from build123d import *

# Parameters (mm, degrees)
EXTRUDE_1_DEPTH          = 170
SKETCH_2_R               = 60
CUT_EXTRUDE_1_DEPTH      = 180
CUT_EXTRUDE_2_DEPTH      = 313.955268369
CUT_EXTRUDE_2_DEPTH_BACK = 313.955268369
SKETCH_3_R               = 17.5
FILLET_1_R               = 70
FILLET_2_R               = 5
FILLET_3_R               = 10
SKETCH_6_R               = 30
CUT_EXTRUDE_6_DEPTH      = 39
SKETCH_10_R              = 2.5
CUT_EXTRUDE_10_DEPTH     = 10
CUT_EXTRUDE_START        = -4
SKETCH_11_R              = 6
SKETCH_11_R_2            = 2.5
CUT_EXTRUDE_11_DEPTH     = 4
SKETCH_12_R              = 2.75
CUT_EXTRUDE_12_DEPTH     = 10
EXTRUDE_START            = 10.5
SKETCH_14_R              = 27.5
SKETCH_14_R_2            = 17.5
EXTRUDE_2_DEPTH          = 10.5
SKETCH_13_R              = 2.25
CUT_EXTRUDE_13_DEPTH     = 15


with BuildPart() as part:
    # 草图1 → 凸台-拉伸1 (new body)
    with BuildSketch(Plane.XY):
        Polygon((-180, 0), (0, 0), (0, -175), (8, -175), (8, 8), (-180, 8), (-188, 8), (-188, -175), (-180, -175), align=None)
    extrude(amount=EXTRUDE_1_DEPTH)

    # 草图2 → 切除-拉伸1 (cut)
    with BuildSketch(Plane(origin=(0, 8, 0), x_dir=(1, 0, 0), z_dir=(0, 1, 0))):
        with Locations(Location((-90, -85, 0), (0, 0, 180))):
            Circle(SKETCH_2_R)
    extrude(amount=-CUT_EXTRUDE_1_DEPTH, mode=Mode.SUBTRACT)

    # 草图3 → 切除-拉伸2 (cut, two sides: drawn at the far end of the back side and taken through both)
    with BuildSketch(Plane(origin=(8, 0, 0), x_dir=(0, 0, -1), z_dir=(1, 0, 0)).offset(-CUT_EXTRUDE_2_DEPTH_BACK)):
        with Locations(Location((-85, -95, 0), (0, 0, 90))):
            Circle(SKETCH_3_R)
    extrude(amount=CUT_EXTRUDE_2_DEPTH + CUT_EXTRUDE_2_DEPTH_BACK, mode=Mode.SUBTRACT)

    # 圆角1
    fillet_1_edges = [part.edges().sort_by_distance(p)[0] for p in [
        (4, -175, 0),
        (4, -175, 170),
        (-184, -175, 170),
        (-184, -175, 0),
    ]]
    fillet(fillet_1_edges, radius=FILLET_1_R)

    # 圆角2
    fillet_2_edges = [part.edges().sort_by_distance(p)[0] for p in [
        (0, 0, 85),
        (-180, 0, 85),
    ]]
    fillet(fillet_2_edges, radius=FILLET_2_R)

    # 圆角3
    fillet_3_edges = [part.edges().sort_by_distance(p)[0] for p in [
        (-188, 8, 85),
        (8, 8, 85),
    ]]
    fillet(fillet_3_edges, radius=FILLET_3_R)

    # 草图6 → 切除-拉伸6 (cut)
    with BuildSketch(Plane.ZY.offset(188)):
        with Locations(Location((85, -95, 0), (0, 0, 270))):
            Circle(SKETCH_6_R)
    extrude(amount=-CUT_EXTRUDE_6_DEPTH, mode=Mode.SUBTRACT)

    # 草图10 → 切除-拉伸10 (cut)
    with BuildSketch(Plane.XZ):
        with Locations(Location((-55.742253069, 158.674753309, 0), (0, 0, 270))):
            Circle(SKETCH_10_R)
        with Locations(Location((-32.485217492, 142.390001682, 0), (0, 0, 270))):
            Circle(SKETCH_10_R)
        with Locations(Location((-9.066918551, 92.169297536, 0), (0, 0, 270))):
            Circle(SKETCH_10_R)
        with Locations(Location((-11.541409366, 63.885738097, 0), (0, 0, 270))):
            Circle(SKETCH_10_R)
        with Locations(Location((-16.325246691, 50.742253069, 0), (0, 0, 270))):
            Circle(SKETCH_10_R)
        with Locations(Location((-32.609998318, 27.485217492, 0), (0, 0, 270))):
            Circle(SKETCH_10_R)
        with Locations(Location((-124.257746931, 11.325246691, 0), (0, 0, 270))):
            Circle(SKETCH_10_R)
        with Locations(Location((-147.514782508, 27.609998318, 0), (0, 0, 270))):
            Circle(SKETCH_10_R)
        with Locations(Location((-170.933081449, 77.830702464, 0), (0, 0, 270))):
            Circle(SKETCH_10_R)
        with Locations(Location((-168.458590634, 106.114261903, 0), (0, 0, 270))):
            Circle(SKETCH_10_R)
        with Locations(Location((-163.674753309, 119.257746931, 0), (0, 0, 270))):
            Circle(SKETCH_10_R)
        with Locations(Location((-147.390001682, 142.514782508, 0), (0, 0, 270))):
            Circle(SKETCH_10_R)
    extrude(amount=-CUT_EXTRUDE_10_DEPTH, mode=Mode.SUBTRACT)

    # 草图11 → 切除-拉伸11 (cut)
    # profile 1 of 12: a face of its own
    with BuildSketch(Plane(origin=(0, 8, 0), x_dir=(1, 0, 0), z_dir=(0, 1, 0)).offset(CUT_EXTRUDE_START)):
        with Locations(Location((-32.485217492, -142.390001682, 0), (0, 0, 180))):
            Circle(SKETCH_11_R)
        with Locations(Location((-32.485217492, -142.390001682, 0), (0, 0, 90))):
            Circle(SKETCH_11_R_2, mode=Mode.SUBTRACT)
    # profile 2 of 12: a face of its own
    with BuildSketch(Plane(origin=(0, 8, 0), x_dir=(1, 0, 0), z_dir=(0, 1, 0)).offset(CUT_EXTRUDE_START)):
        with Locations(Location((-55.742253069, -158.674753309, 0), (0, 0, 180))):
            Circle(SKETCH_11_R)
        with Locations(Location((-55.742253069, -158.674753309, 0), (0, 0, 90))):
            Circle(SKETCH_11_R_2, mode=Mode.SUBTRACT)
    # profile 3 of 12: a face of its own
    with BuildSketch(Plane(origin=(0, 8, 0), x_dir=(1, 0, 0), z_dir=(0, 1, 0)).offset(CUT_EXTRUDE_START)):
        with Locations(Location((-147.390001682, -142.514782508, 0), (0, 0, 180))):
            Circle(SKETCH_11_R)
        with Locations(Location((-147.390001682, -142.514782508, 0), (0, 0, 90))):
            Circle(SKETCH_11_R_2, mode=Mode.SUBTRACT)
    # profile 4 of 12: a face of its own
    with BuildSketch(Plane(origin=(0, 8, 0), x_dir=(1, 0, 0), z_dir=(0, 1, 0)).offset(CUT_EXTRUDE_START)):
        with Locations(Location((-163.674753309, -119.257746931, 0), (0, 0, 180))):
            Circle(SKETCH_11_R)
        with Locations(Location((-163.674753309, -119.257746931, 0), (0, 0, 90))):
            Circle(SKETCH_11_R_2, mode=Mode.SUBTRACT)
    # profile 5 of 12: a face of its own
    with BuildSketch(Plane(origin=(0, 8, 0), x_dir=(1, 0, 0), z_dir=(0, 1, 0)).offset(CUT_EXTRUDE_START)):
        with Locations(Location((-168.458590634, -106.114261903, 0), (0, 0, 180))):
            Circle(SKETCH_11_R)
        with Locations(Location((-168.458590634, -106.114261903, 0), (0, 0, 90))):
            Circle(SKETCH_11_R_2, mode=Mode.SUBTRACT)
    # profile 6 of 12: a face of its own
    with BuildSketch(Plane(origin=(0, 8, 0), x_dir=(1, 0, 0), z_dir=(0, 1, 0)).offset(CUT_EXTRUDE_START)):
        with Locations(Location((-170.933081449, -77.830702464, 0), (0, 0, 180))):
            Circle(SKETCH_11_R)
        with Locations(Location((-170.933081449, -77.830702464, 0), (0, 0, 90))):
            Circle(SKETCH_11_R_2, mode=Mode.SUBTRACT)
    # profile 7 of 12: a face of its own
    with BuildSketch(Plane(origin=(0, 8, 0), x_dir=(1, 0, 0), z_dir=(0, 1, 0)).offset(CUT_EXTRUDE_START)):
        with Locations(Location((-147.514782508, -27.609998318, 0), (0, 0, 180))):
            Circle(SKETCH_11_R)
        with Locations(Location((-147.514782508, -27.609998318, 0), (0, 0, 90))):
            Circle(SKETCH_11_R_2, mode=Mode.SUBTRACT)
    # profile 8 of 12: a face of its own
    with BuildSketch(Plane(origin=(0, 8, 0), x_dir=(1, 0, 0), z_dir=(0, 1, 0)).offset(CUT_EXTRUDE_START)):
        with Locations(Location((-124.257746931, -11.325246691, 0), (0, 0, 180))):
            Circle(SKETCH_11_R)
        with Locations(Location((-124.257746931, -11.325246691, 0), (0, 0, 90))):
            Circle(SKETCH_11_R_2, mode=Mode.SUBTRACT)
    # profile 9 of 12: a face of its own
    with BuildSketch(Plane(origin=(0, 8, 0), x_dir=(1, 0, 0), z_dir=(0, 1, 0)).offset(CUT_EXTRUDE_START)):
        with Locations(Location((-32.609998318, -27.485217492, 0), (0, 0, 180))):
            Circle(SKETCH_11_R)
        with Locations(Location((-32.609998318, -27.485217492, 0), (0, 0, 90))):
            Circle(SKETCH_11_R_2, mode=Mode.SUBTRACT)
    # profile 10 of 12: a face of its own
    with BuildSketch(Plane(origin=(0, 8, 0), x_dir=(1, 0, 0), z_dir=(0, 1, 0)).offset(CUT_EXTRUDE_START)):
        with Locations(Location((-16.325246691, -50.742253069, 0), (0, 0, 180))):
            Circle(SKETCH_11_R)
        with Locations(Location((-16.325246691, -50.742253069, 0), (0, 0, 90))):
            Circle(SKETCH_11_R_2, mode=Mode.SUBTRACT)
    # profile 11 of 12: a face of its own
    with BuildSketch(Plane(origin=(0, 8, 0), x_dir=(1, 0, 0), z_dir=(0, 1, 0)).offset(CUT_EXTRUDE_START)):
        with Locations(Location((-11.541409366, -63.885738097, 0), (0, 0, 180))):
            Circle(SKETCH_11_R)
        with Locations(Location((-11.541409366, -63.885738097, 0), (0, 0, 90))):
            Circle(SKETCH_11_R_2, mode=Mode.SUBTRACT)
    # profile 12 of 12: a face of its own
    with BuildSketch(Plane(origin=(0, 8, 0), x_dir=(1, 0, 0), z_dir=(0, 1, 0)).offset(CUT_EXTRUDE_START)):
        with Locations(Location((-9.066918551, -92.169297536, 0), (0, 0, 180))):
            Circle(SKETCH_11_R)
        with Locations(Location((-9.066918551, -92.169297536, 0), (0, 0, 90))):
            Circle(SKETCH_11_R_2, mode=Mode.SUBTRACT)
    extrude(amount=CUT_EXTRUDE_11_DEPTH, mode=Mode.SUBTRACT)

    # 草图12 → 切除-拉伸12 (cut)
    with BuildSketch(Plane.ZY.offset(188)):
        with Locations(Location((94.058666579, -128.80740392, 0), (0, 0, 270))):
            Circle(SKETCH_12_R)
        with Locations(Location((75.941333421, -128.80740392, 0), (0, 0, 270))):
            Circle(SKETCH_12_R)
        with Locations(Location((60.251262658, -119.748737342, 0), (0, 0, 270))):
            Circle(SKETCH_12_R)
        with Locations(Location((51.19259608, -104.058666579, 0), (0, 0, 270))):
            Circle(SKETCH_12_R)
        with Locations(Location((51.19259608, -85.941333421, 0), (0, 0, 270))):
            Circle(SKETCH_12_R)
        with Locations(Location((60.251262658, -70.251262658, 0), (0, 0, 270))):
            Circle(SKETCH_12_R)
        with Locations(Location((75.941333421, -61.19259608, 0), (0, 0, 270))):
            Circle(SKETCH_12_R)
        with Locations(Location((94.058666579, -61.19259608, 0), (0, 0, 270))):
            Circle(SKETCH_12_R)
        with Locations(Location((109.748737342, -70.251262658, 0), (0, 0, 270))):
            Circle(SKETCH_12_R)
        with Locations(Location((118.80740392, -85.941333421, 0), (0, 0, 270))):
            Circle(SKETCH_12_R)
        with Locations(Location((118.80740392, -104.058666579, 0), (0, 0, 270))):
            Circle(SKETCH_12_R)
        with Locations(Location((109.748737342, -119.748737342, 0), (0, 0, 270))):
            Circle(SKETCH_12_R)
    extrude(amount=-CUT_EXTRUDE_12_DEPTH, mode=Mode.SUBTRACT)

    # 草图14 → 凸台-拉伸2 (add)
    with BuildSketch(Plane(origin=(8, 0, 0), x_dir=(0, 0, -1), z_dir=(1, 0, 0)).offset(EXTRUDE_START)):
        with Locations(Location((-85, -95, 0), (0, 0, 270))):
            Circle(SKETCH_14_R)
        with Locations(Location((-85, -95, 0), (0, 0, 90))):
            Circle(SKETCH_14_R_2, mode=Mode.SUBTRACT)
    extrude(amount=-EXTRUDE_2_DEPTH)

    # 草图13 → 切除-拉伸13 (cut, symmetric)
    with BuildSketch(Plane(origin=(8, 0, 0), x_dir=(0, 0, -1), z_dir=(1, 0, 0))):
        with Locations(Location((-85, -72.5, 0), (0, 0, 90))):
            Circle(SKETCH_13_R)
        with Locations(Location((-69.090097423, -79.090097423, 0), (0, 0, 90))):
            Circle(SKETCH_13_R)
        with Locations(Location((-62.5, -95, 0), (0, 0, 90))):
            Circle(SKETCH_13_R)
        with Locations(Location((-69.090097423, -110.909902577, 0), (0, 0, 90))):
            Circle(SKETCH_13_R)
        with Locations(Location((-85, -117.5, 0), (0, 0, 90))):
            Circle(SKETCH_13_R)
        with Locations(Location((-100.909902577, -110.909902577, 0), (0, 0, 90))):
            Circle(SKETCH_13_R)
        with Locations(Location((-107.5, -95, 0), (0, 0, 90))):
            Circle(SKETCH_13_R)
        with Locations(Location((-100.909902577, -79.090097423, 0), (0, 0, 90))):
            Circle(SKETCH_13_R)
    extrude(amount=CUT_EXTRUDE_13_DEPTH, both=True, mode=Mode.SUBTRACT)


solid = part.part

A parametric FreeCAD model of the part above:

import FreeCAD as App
import Part
import Sketcher
from FreeCAD import Vector


def edges_at(feature, points):
    """Names of the edges that pass closest to the given points."""
    edges = feature.Shape.Edges
    near = lambda p: min(range(len(edges)), key=lambda i: edges[i].distToShape(Part.Vertex(*p))[0])
    return sorted({f"Edge{near(p) + 1}" for p in points})

doc = App.newDocument("Part")
body = doc.addObject("PartDesign::Body", "Body")

sketch1 = body.newObject("Sketcher::SketchObject", "Sketch")
sketch1.AttachmentSupport = (doc.getObject("XY_Plane"), [""])
sketch1.MapMode = "FlatFace"
sketch1.addGeometry(Part.LineSegment(Vector(-180, 0, 0), Vector(0, 0, 0)), False)
sketch1.addGeometry(Part.LineSegment(Vector(0, 0, 0), Vector(0, -175, 0)), False)
sketch1.addGeometry(Part.LineSegment(Vector(0, -175, 0), Vector(8, -175, 0)), False)
sketch1.addGeometry(Part.LineSegment(Vector(8, -175, 0), Vector(8, 8, 0)), False)
sketch1.addGeometry(Part.LineSegment(Vector(8, 8, 0), Vector(-188, 8, 0)), False)
sketch1.addGeometry(Part.LineSegment(Vector(-188, 8, 0), Vector(-188, -175, 0)), False)
sketch1.addGeometry(Part.LineSegment(Vector(-188, -175, 0), Vector(-180, -175, 0)), False)
sketch1.addGeometry(Part.LineSegment(Vector(-180, -175, 0), Vector(-180, 0, 0)), False)
sketch1.addConstraint(Sketcher.Constraint("Coincident", 0, 2, 1, 1))
sketch1.addConstraint(Sketcher.Constraint("Coincident", 1, 2, 2, 1))
sketch1.addConstraint(Sketcher.Constraint("Coincident", 2, 2, 3, 1))
sketch1.addConstraint(Sketcher.Constraint("Coincident", 3, 2, 4, 1))
sketch1.addConstraint(Sketcher.Constraint("Coincident", 4, 2, 5, 1))
sketch1.addConstraint(Sketcher.Constraint("Coincident", 5, 2, 6, 1))
sketch1.addConstraint(Sketcher.Constraint("Coincident", 6, 2, 7, 1))
sketch1.addConstraint(Sketcher.Constraint("Coincident", 7, 2, 0, 1))
sketch1.addConstraint(Sketcher.Constraint("Horizontal", 0))
sketch1.addConstraint(Sketcher.Constraint("Vertical", 1))
sketch1.addConstraint(Sketcher.Constraint("Horizontal", 2))
sketch1.addConstraint(Sketcher.Constraint("Vertical", 3))
sketch1.addConstraint(Sketcher.Constraint("Horizontal", 4))
sketch1.addConstraint(Sketcher.Constraint("Vertical", 5))
sketch1.addConstraint(Sketcher.Constraint("Horizontal", 6))
sketch1.addConstraint(Sketcher.Constraint("Vertical", 7))
sketch1.addConstraint(Sketcher.Constraint("Coincident", 0, 2, -1, 1))
sketch1.addConstraint(Sketcher.Constraint("Horizontal", 2, 2, 5, 2))
sketch1.addConstraint(Sketcher.Constraint("Equal", 2, 6))
sketch1.addConstraint(Sketcher.Constraint("DistanceX", 0, 1, 0, 2, 180.0))
sketch1.addConstraint(Sketcher.Constraint("DistanceX", 2, 1, 2, 2, 8.0))
sketch1.addConstraint(Sketcher.Constraint("DistanceY", 1, 2, 1, 1, 175.0))
sketch1.addConstraint(Sketcher.Constraint("DistanceY", 3, 1, 3, 2, 183.0))
pad1 = body.newObject("PartDesign::Pad", "Pad")
pad1.Profile = sketch1
pad1.Length = 170

sketch2 = body.newObject("Sketcher::SketchObject", "Sketch001")
sketch2.AttachmentSupport = (doc.getObject("XZ_Plane"), [""])
sketch2.MapMode = "FlatFace"
sketch2.AttachmentOffset = App.Placement(Vector(0, 0, -8), App.Rotation())
sketch2.addGeometry(Part.Circle(Vector(-90, 85, 0), Vector(0, 0, 1), 60), False)
sketch2.addConstraint(Sketcher.Constraint("Diameter", 0, 120.0))
sketch2.addConstraint(Sketcher.Constraint("DistanceX", 0, 3, -1, 1, 90.0))
sketch2.addConstraint(Sketcher.Constraint("DistanceY", -1, 1, 0, 3, 85.0))
pocket1 = body.newObject("PartDesign::Pocket", "Pocket")
pocket1.Profile = sketch2
pocket1.Length = 180
pocket1.Reversed = True

sketch3 = body.newObject("Sketcher::SketchObject", "Sketch002")
sketch3.AttachmentSupport = (doc.getObject("YZ_Plane"), [""])
sketch3.MapMode = "FlatFace"
sketch3.AttachmentOffset = App.Placement(Vector(0, 0, 8), App.Rotation())
sketch3.addGeometry(Part.Circle(Vector(-95, 85, 0), Vector(0, 0, 1), 18), False)
sketch3.addConstraint(Sketcher.Constraint("Diameter", 0, 35.0))
sketch3.addConstraint(Sketcher.Constraint("DistanceX", 0, 3, -1, 1, 95.0))
sketch3.addConstraint(Sketcher.Constraint("DistanceY", -1, 1, 0, 3, 85.0))
pocket2 = body.newObject("PartDesign::Pocket", "Pocket001")
pocket2.Profile = sketch3
pocket2.Type = "ThroughAll"
pocket2.Midplane = True
doc.recompute()

fillet = body.newObject("PartDesign::Fillet", "Fillet")
fillet.Base = (pocket2, edges_at(pocket2, [
    (4, -175, 0),
    (4, -175, 170),
    (-184, -175, 170),
    (-184, -175, 0),
]))
fillet.Radius = 70
doc.recompute()

fillet2 = body.newObject("PartDesign::Fillet", "Fillet001")
fillet2.Base = (fillet, edges_at(fillet, [(0, 0, 85), (-180, 0, 85)]))
fillet2.Radius = 5
doc.recompute()

fillet3 = body.newObject("PartDesign::Fillet", "Fillet002")
fillet3.Base = (fillet2, edges_at(fillet2, [(-188, 8, 85), (8, 8, 85)]))
fillet3.Radius = 10

sketch4 = body.newObject("Sketcher::SketchObject", "Sketch003")
sketch4.AttachmentSupport = (doc.getObject("YZ_Plane"), [""])
sketch4.MapMode = "FlatFace"
sketch4.AttachmentOffset = App.Placement(Vector(0, 0, -188), App.Rotation())
sketch4.addGeometry(Part.Circle(Vector(-95, 85, 0), Vector(0, 0, 1), 30), False)
sketch4.addConstraint(Sketcher.Constraint("Diameter", 0, 60.0))
sketch4.addConstraint(Sketcher.Constraint("DistanceX", 0, 3, -1, 1, 95.0))
sketch4.addConstraint(Sketcher.Constraint("DistanceY", -1, 1, 0, 3, 85.0))
pocket3 = body.newObject("PartDesign::Pocket", "Pocket002")
pocket3.Profile = sketch4
pocket3.Length = 39
pocket3.Reversed = True

sketch5 = body.newObject("Sketcher::SketchObject", "Sketch004")
sketch5.AttachmentSupport = (doc.getObject("XZ_Plane"), [""])
sketch5.MapMode = "FlatFace"
sketch5.addGeometry(Part.Circle(Vector(-55.7, 158.7, 0), Vector(0, 0, 1), 2.5), False)
sketch5.addGeometry(Part.Circle(Vector(-32.5, 142.4, 0), Vector(0, 0, 1), 2.5), False)
sketch5.addGeometry(Part.Circle(Vector(-9.1, 92.2, 0), Vector(0, 0, 1), 2.5), False)
sketch5.addGeometry(Part.Circle(Vector(-11.5, 63.9, 0), Vector(0, 0, 1), 2.5), False)
sketch5.addGeometry(Part.Circle(Vector(-16.3, 50.7, 0), Vector(0, 0, 1), 2.5), False)
sketch5.addGeometry(Part.Circle(Vector(-32.6, 27.5, 0), Vector(0, 0, 1), 2.5), False)
sketch5.addGeometry(Part.Circle(Vector(-124.3, 11.3, 0), Vector(0, 0, 1), 2.5), False)
sketch5.addGeometry(Part.Circle(Vector(-147.5, 27.6, 0), Vector(0, 0, 1), 2.5), False)
sketch5.addGeometry(Part.Circle(Vector(-170.9, 77.8, 0), Vector(0, 0, 1), 2.5), False)
sketch5.addGeometry(Part.Circle(Vector(-168.5, 106.1, 0), Vector(0, 0, 1), 2.5), False)
sketch5.addGeometry(Part.Circle(Vector(-163.7, 119.3, 0), Vector(0, 0, 1), 2.5), False)
sketch5.addGeometry(Part.Circle(Vector(-147.4, 142.5, 0), Vector(0, 0, 1), 2.5), False)
sketch5.addConstraint(Sketcher.Constraint("Equal", 0, 1))
sketch5.addConstraint(Sketcher.Constraint("Equal", 1, 2))
sketch5.addConstraint(Sketcher.Constraint("Equal", 2, 3))
sketch5.addConstraint(Sketcher.Constraint("Equal", 3, 4))
sketch5.addConstraint(Sketcher.Constraint("Equal", 4, 5))
sketch5.addConstraint(Sketcher.Constraint("Equal", 5, 6))
sketch5.addConstraint(Sketcher.Constraint("Equal", 6, 7))
sketch5.addConstraint(Sketcher.Constraint("Equal", 7, 8))
sketch5.addConstraint(Sketcher.Constraint("Equal", 8, 9))
sketch5.addConstraint(Sketcher.Constraint("Equal", 9, 10))
sketch5.addConstraint(Sketcher.Constraint("Equal", 10, 11))
sketch5.addConstraint(Sketcher.Constraint("Diameter", 0, 5.0))
sketch5.addConstraint(Sketcher.Constraint("DistanceY", -1, 1, 1, 3, 142.390002))
sketch5.addConstraint(Sketcher.Constraint("DistanceX", 5, 3, -1, 1, 32.609998))
sketch5.addConstraint(Sketcher.Constraint("DistanceY", -1, 1, 7, 3, 27.609998))
sketch5.addConstraint(Sketcher.Constraint("DistanceX", 11, 3, -1, 1, 147.390002))
sketch5.addConstraint(Sketcher.Constraint("DistanceX", 1, 3, 2, 3, 23.418299))
sketch5.addConstraint(Sketcher.Constraint("DistanceY", 4, 3, 0, 3, 107.9325))
sketch5.addConstraint(Sketcher.Constraint("DistanceX", 6, 3, 4, 3, 107.9325))
sketch5.addConstraint(Sketcher.Constraint("DistanceY", 7, 3, 2, 3, 64.559299))
sketch5.addConstraint(Sketcher.Constraint("DistanceX", 8, 3, 7, 3, 23.418299))
sketch5.addConstraint(Sketcher.Constraint("DistanceY", 8, 3, 1, 3, 64.559299))
sketch5.addConstraint(Sketcher.Constraint("DistanceY", 6, 3, 10, 3, 107.9325))
sketch5.addConstraint(Sketcher.Constraint("DistanceX", 10, 3, 0, 3, 107.9325))
sketch5.addConstraint(Sketcher.Constraint("DistanceX", 2, 3, -1, 1, 9.066919))
sketch5.addConstraint(Sketcher.Constraint("DistanceX", 3, 3, -1, 1, 11.541409))
sketch5.addConstraint(Sketcher.Constraint("DistanceY", -1, 1, 3, 3, 63.885738))
sketch5.addConstraint(Sketcher.Constraint("DistanceX", 8, 3, -1, 1, 170.933081))
sketch5.addConstraint(Sketcher.Constraint("DistanceX", 9, 3, -1, 1, 168.458591))
sketch5.addConstraint(Sketcher.Constraint("DistanceY", -1, 1, 9, 3, 106.114262))
sketch5.addConstraint(Sketcher.Constraint("DistanceY", 1, 3, 0, 3, 16.284752))
sketch5.addConstraint(Sketcher.Constraint("DistanceX", 4, 3, 2, 3, 7.258328))
sketch5.addConstraint(Sketcher.Constraint("DistanceY", 5, 3, 3, 3, 36.400521))
sketch5.addConstraint(Sketcher.Constraint("DistanceY", 6, 3, 5, 3, 16.159971))
sketch5.addConstraint(Sketcher.Constraint("DistanceX", 8, 3, 0, 3, 115.190828))
sketch5.addConstraint(Sketcher.Constraint("DistanceY", 9, 3, 11, 3, 36.400521))
pocket4 = body.newObject("PartDesign::Pocket", "Pocket003")
pocket4.Profile = sketch5
pocket4.Length = 10

sketch6 = body.newObject("Sketcher::SketchObject", "Sketch005")
sketch6.AttachmentSupport = (doc.getObject("XZ_Plane"), [""])
sketch6.MapMode = "FlatFace"
sketch6.AttachmentOffset = App.Placement(Vector(0, 0, -4), App.Rotation())
sketch6.addGeometry(Part.Circle(Vector(-32.5, 142.4, 0), Vector(0, 0, 1), 6), False)
sketch6.addGeometry(Part.Circle(Vector(-32.5, 142.4, 0), Vector(0, 0, 1), 2.5), False)
sketch6.addGeometry(Part.Circle(Vector(-55.7, 158.7, 0), Vector(0, 0, 1), 6), False)
sketch6.addGeometry(Part.Circle(Vector(-55.7, 158.7, 0), Vector(0, 0, 1), 2.5), False)
sketch6.addGeometry(Part.Circle(Vector(-147.4, 142.5, 0), Vector(0, 0, 1), 6), False)
sketch6.addGeometry(Part.Circle(Vector(-147.4, 142.5, 0), Vector(0, 0, 1), 2.5), False)
sketch6.addGeometry(Part.Circle(Vector(-163.7, 119.3, 0), Vector(0, 0, 1), 6), False)
sketch6.addGeometry(Part.Circle(Vector(-163.7, 119.3, 0), Vector(0, 0, 1), 2.5), False)
sketch6.addGeometry(Part.Circle(Vector(-168.5, 106.1, 0), Vector(0, 0, 1), 6), False)
sketch6.addGeometry(Part.Circle(Vector(-168.5, 106.1, 0), Vector(0, 0, 1), 2.5), False)
sketch6.addGeometry(Part.Circle(Vector(-170.9, 77.8, 0), Vector(0, 0, 1), 6), False)
sketch6.addGeometry(Part.Circle(Vector(-170.9, 77.8, 0), Vector(0, 0, 1), 2.5), False)
sketch6.addGeometry(Part.Circle(Vector(-147.5, 27.6, 0), Vector(0, 0, 1), 6), False)
sketch6.addGeometry(Part.Circle(Vector(-147.5, 27.6, 0), Vector(0, 0, 1), 2.5), False)
sketch6.addGeometry(Part.Circle(Vector(-124.3, 11.3, 0), Vector(0, 0, 1), 6), False)
sketch6.addGeometry(Part.Circle(Vector(-124.3, 11.3, 0), Vector(0, 0, 1), 2.5), False)
sketch6.addGeometry(Part.Circle(Vector(-32.6, 27.5, 0), Vector(0, 0, 1), 6), False)
sketch6.addGeometry(Part.Circle(Vector(-32.6, 27.5, 0), Vector(0, 0, 1), 2.5), False)
sketch6.addGeometry(Part.Circle(Vector(-16.3, 50.7, 0), Vector(0, 0, 1), 6), False)
sketch6.addGeometry(Part.Circle(Vector(-16.3, 50.7, 0), Vector(0, 0, 1), 2.5), False)
sketch6.addGeometry(Part.Circle(Vector(-11.5, 63.9, 0), Vector(0, 0, 1), 6), False)
sketch6.addGeometry(Part.Circle(Vector(-11.5, 63.9, 0), Vector(0, 0, 1), 2.5), False)
sketch6.addGeometry(Part.Circle(Vector(-9.1, 92.2, 0), Vector(0, 0, 1), 6), False)
sketch6.addGeometry(Part.Circle(Vector(-9.1, 92.2, 0), Vector(0, 0, 1), 2.5), False)
sketch6.addConstraint(Sketcher.Constraint("Coincident", 1, 3, 0, 3))
sketch6.addConstraint(Sketcher.Constraint("Coincident", 3, 3, 2, 3))
sketch6.addConstraint(Sketcher.Constraint("Coincident", 5, 3, 4, 3))
sketch6.addConstraint(Sketcher.Constraint("Coincident", 7, 3, 6, 3))
sketch6.addConstraint(Sketcher.Constraint("Coincident", 9, 3, 8, 3))
sketch6.addConstraint(Sketcher.Constraint("Coincident", 11, 3, 10, 3))
sketch6.addConstraint(Sketcher.Constraint("Coincident", 13, 3, 12, 3))
sketch6.addConstraint(Sketcher.Constraint("Coincident", 15, 3, 14, 3))
sketch6.addConstraint(Sketcher.Constraint("Coincident", 17, 3, 16, 3))
sketch6.addConstraint(Sketcher.Constraint("Coincident", 19, 3, 18, 3))
sketch6.addConstraint(Sketcher.Constraint("Coincident", 21, 3, 20, 3))
sketch6.addConstraint(Sketcher.Constraint("Coincident", 23, 3, 22, 3))
sketch6.addConstraint(Sketcher.Constraint("Equal", 0, 2))
sketch6.addConstraint(Sketcher.Constraint("Equal", 1, 3))
sketch6.addConstraint(Sketcher.Constraint("Equal", 2, 4))
sketch6.addConstraint(Sketcher.Constraint("Equal", 3, 5))
sketch6.addConstraint(Sketcher.Constraint("Equal", 4, 6))
sketch6.addConstraint(Sketcher.Constraint("Equal", 5, 7))
sketch6.addConstraint(Sketcher.Constraint("Equal", 6, 8))
sketch6.addConstraint(Sketcher.Constraint("Equal", 7, 9))
sketch6.addConstraint(Sketcher.Constraint("Equal", 8, 10))
sketch6.addConstraint(Sketcher.Constraint("Equal", 9, 11))
sketch6.addConstraint(Sketcher.Constraint("Equal", 10, 12))
sketch6.addConstraint(Sketcher.Constraint("Equal", 11, 13))
sketch6.addConstraint(Sketcher.Constraint("Equal", 12, 14))
sketch6.addConstraint(Sketcher.Constraint("Equal", 13, 15))
sketch6.addConstraint(Sketcher.Constraint("Equal", 14, 16))
sketch6.addConstraint(Sketcher.Constraint("Equal", 15, 17))
sketch6.addConstraint(Sketcher.Constraint("Equal", 16, 18))
sketch6.addConstraint(Sketcher.Constraint("Equal", 17, 19))
sketch6.addConstraint(Sketcher.Constraint("Equal", 18, 20))
sketch6.addConstraint(Sketcher.Constraint("Equal", 19, 21))
sketch6.addConstraint(Sketcher.Constraint("Equal", 20, 22))
sketch6.addConstraint(Sketcher.Constraint("Equal", 21, 23))
sketch6.addConstraint(Sketcher.Constraint("Diameter", 0, 12.0))
sketch6.addConstraint(Sketcher.Constraint("Diameter", 1, 5.0))
sketch6.addConstraint(Sketcher.Constraint("DistanceY", -1, 1, 0, 3, 142.390002))
sketch6.addConstraint(Sketcher.Constraint("DistanceX", 4, 3, -1, 1, 147.390002))
sketch6.addConstraint(Sketcher.Constraint("DistanceY", -1, 1, 12, 3, 27.609998))
sketch6.addConstraint(Sketcher.Constraint("DistanceX", 16, 3, -1, 1, 32.609998))
sketch6.addConstraint(Sketcher.Constraint("DistanceX", 6, 3, 2, 3, 107.9325))
sketch6.addConstraint(Sketcher.Constraint("DistanceX", 10, 3, 12, 3, 23.418299))
sketch6.addConstraint(Sketcher.Constraint("DistanceX", 14, 3, 18, 3, 107.9325))
sketch6.addConstraint(Sketcher.Constraint("DistanceX", 0, 3, 22, 3, 23.418299))
sketch6.addConstraint(Sketcher.Constraint("DistanceX", 8, 3, -1, 1, 168.458591))
sketch6.addConstraint(Sketcher.Constraint("DistanceY", -1, 1, 8, 3, 106.114262))
sketch6.addConstraint(Sketcher.Constraint("DistanceX", 10, 3, -1, 1, 170.933081))
sketch6.addConstraint(Sketcher.Constraint("DistanceX", 20, 3, -1, 1, 11.541409))
sketch6.addConstraint(Sketcher.Constraint("DistanceY", -1, 1, 20, 3, 63.885738))
sketch6.addConstraint(Sketcher.Constraint("DistanceX", 22, 3, -1, 1, 9.066919))
sketch6.addConstraint(Sketcher.Constraint("DistanceY", 0, 3, 2, 3, 16.284752))
sketch6.addConstraint(Sketcher.Constraint("DistanceX", 4, 3, 2, 3, 91.647749))
sketch6.addConstraint(Sketcher.Constraint("DistanceY", 4, 3, 2, 3, 16.159971))
sketch6.addConstraint(Sketcher.Constraint("DistanceY", 10, 3, 8, 3, 28.283559))
sketch6.addConstraint(Sketcher.Constraint("DistanceY", 12, 3, 6, 3, 91.647749))
sketch6.addConstraint(Sketcher.Constraint("DistanceY", 14, 3, 12, 3, 16.284752))
sketch6.addConstraint(Sketcher.Constraint("DistanceX", 14, 3, 16, 3, 91.647749))
sketch6.addConstraint(Sketcher.Constraint("DistanceY", 14, 3, 16, 3, 16.159971))
sketch6.addConstraint(Sketcher.Constraint("DistanceY", 18, 3, 0, 3, 91.647749))
sketch6.addConstraint(Sketcher.Constraint("DistanceY", 20, 3, 22, 3, 28.283559))
pocket5 = body.newObject("PartDesign::Pocket", "Pocket004")
pocket5.Profile = sketch6
pocket5.Length = 4

sketch7 = body.newObject("Sketcher::SketchObject", "Sketch006")
sketch7.AttachmentSupport = (doc.getObject("YZ_Plane"), [""])
sketch7.MapMode = "FlatFace"
sketch7.AttachmentOffset = App.Placement(Vector(0, 0, -188), App.Rotation())
sketch7.addGeometry(Part.Circle(Vector(-128.8, 94.1, 0), Vector(0, 0, 1), 2.8), False)
sketch7.addGeometry(Part.Circle(Vector(-128.8, 75.9, 0), Vector(0, 0, 1), 2.8), False)
sketch7.addGeometry(Part.Circle(Vector(-119.7, 60.3, 0), Vector(0, 0, 1), 2.8), False)
sketch7.addGeometry(Part.Circle(Vector(-104.1, 51.2, 0), Vector(0, 0, 1), 2.8), False)
sketch7.addGeometry(Part.Circle(Vector(-85.9, 51.2, 0), Vector(0, 0, 1), 2.8), False)
sketch7.addGeometry(Part.Circle(Vector(-70.3, 60.3, 0), Vector(0, 0, 1), 2.8), False)
sketch7.addGeometry(Part.Circle(Vector(-61.2, 75.9, 0), Vector(0, 0, 1), 2.8), False)
sketch7.addGeometry(Part.Circle(Vector(-61.2, 94.1, 0), Vector(0, 0, 1), 2.8), False)
sketch7.addGeometry(Part.Circle(Vector(-70.3, 109.7, 0), Vector(0, 0, 1), 2.8), False)
sketch7.addGeometry(Part.Circle(Vector(-85.9, 118.8, 0), Vector(0, 0, 1), 2.8), False)
sketch7.addGeometry(Part.Circle(Vector(-104.1, 118.8, 0), Vector(0, 0, 1), 2.8), False)
sketch7.addGeometry(Part.Circle(Vector(-119.7, 109.7, 0), Vector(0, 0, 1), 2.8), False)
sketch7.addConstraint(Sketcher.Constraint("Equal", 0, 1))
sketch7.addConstraint(Sketcher.Constraint("Equal", 1, 2))
sketch7.addConstraint(Sketcher.Constraint("Equal", 2, 3))
sketch7.addConstraint(Sketcher.Constraint("Equal", 3, 4))
sketch7.addConstraint(Sketcher.Constraint("Equal", 4, 5))
sketch7.addConstraint(Sketcher.Constraint("Equal", 5, 6))
sketch7.addConstraint(Sketcher.Constraint("Equal", 6, 7))
sketch7.addConstraint(Sketcher.Constraint("Equal", 7, 8))
sketch7.addConstraint(Sketcher.Constraint("Equal", 8, 9))
sketch7.addConstraint(Sketcher.Constraint("Equal", 9, 10))
sketch7.addConstraint(Sketcher.Constraint("Equal", 10, 11))
sketch7.addConstraint(Sketcher.Constraint("Horizontal", 3, 3, 4, 3))
sketch7.addConstraint(Sketcher.Constraint("Horizontal", 2, 3, 5, 3))
sketch7.addConstraint(Sketcher.Constraint("Horizontal", 1, 3, 6, 3))
sketch7.addConstraint(Sketcher.Constraint("Horizontal", 0, 3, 7, 3))
sketch7.addConstraint(Sketcher.Constraint("Horizontal", 9, 3, 10, 3))
sketch7.addConstraint(Sketcher.Constraint("Horizontal", 8, 3, 11, 3))
sketch7.addConstraint(Sketcher.Constraint("Vertical", 0, 3, 1, 3))
sketch7.addConstraint(Sketcher.Constraint("Vertical", 6, 3, 7, 3))
sketch7.addConstraint(Sketcher.Constraint("Vertical", 5, 3, 8, 3))
sketch7.addConstraint(Sketcher.Constraint("Vertical", 4, 3, 9, 3))
sketch7.addConstraint(Sketcher.Constraint("Vertical", 3, 3, 10, 3))
sketch7.addConstraint(Sketcher.Constraint("Vertical", 2, 3, 11, 3))
sketch7.addConstraint(Sketcher.Constraint("Diameter", 0, 5.5))
sketch7.addConstraint(Sketcher.Constraint("DistanceY", 2, 3, 1, 3, 15.690071))
sketch7.addConstraint(Sketcher.Constraint("DistanceX", 2, 3, 3, 3, 15.690071))
sketch7.addConstraint(Sketcher.Constraint("DistanceY", 3, 3, 0, 3, 42.86607))
sketch7.addConstraint(Sketcher.Constraint("DistanceX", 1, 3, 4, 3, 42.86607))
sketch7.addConstraint(Sketcher.Constraint("DistanceX", 4, 3, 5, 3, 15.690071))
sketch7.addConstraint(Sketcher.Constraint("DistanceX", 3, 3, 6, 3, 42.86607))
sketch7.addConstraint(Sketcher.Constraint("DistanceY", 7, 3, 8, 3, 15.690071))
sketch7.addConstraint(Sketcher.Constraint("DistanceY", 6, 3, 9, 3, 42.86607))
sketch7.addConstraint(Sketcher.Constraint("DistanceX", 0, 3, -1, 1, 128.807404))
sketch7.addConstraint(Sketcher.Constraint("DistanceY", -1, 1, 0, 3, 94.058667))
sketch7.addConstraint(Sketcher.Constraint("DistanceY", -1, 1, 1, 3, 75.941333))
sketch7.addConstraint(Sketcher.Constraint("DistanceX", 2, 3, -1, 1, 119.748737))
pocket6 = body.newObject("PartDesign::Pocket", "Pocket005")
pocket6.Profile = sketch7
pocket6.Length = 10
pocket6.Reversed = True

sketch8 = body.newObject("Sketcher::SketchObject", "Sketch007")
sketch8.AttachmentSupport = (doc.getObject("YZ_Plane"), [""])
sketch8.MapMode = "FlatFace"
sketch8.AttachmentOffset = App.Placement(Vector(0, 0, 18.5), App.Rotation())
sketch8.addGeometry(Part.Circle(Vector(-95, 85, 0), Vector(0, 0, 1), 28), False)
sketch8.addGeometry(Part.Circle(Vector(-95, 85, 0), Vector(0, 0, 1), 18), False)
sketch8.addConstraint(Sketcher.Constraint("Coincident", 1, 3, 0, 3))
sketch8.addConstraint(Sketcher.Constraint("Diameter", 0, 55.0))
sketch8.addConstraint(Sketcher.Constraint("Diameter", 1, 35.0))
sketch8.addConstraint(Sketcher.Constraint("DistanceX", 0, 3, -1, 1, 95.0))
sketch8.addConstraint(Sketcher.Constraint("DistanceY", -1, 1, 0, 3, 85.0))
pad2 = body.newObject("PartDesign::Pad", "Pad001")
pad2.Profile = sketch8
pad2.Length = 10.5
pad2.Reversed = True

sketch9 = body.newObject("Sketcher::SketchObject", "Sketch008")
sketch9.AttachmentSupport = (doc.getObject("YZ_Plane"), [""])
sketch9.MapMode = "FlatFace"
sketch9.AttachmentOffset = App.Placement(Vector(0, 0, 8), App.Rotation())
sketch9.addGeometry(Part.Circle(Vector(-72.5, 85, 0), Vector(0, 0, 1), 2.2), False)
sketch9.addGeometry(Part.Circle(Vector(-79.1, 69.1, 0), Vector(0, 0, 1), 2.2), False)
sketch9.addGeometry(Part.Circle(Vector(-95, 62.5, 0), Vector(0, 0, 1), 2.2), False)
sketch9.addGeometry(Part.Circle(Vector(-110.9, 69.1, 0), Vector(0, 0, 1), 2.2), False)
sketch9.addGeometry(Part.Circle(Vector(-117.5, 85, 0), Vector(0, 0, 1), 2.2), False)
sketch9.addGeometry(Part.Circle(Vector(-110.9, 100.9, 0), Vector(0, 0, 1), 2.2), False)
sketch9.addGeometry(Part.Circle(Vector(-95, 107.5, 0), Vector(0, 0, 1), 2.2), False)
sketch9.addGeometry(Part.Circle(Vector(-79.1, 100.9, 0), Vector(0, 0, 1), 2.2), False)
sketch9.addConstraint(Sketcher.Constraint("Equal", 0, 1))
sketch9.addConstraint(Sketcher.Constraint("Equal", 1, 2))
sketch9.addConstraint(Sketcher.Constraint("Equal", 2, 3))
sketch9.addConstraint(Sketcher.Constraint("Equal", 3, 4))
sketch9.addConstraint(Sketcher.Constraint("Equal", 4, 5))
sketch9.addConstraint(Sketcher.Constraint("Equal", 5, 6))
sketch9.addConstraint(Sketcher.Constraint("Equal", 6, 7))
sketch9.addConstraint(Sketcher.Constraint("Horizontal", 1, 3, 3, 3))
sketch9.addConstraint(Sketcher.Constraint("Horizontal", 0, 3, 4, 3))
sketch9.addConstraint(Sketcher.Constraint("Horizontal", 5, 3, 7, 3))
sketch9.addConstraint(Sketcher.Constraint("Vertical", 3, 3, 5, 3))
sketch9.addConstraint(Sketcher.Constraint("Vertical", 2, 3, 6, 3))
sketch9.addConstraint(Sketcher.Constraint("Vertical", 1, 3, 7, 3))
sketch9.addConstraint(Sketcher.Constraint("Diameter", 0, 4.5))
sketch9.addConstraint(Sketcher.Constraint("DistanceY", -1, 1, 0, 3, 85.0))
sketch9.addConstraint(Sketcher.Constraint("DistanceX", 2, 3, -1, 1, 95.0))
sketch9.addConstraint(Sketcher.Constraint("DistanceX", 4, 3, 0, 3, 45.0))
sketch9.addConstraint(Sketcher.Constraint("DistanceX", 0, 3, -1, 1, 72.5))
sketch9.addConstraint(Sketcher.Constraint("DistanceY", -1, 1, 2, 3, 62.5))
sketch9.addConstraint(Sketcher.Constraint("DistanceY", -1, 1, 6, 3, 107.5))
sketch9.addConstraint(Sketcher.Constraint("DistanceX", 1, 3, -1, 1, 79.090097))
sketch9.addConstraint(Sketcher.Constraint("DistanceY", -1, 1, 1, 3, 69.090097))
sketch9.addConstraint(Sketcher.Constraint("DistanceX", 3, 3, -1, 1, 110.909903))
sketch9.addConstraint(Sketcher.Constraint("DistanceY", -1, 1, 5, 3, 100.909903))
pocket7 = body.newObject("PartDesign::Pocket", "Pocket006")
pocket7.Profile = sketch9
pocket7.Length = 30
pocket7.Midplane = True

doc.recompute()
